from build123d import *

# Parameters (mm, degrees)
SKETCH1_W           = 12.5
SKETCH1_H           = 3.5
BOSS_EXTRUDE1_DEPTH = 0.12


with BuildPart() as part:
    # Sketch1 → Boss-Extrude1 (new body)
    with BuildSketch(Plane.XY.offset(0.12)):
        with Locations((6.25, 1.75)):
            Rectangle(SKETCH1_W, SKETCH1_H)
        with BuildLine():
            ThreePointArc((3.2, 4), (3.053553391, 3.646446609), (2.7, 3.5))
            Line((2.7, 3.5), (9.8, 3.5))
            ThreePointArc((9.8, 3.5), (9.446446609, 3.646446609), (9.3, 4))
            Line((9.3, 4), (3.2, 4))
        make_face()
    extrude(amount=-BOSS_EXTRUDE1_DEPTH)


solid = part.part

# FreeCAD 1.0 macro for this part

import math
import FreeCAD as App
import Part
import Sketcher
from FreeCAD import Vector

doc = App.newDocument("Part")
body = doc.addObject("PartDesign::Body", "Body")

sketch1 = body.newObject("Sketcher::SketchObject", "Sketch")
sketch1.AttachmentSupport = (doc.getObject("XY_Plane"), [""])
sketch1.MapMode = "FlatFace"
sketch1.AttachmentOffset = App.Placement(Vector(0, 0, 0.12), App.Rotation())
sketch1.addGeometry([
    Part.LineSegment(Vector(0, 3.5, 0), Vector(0, 0, 0)),
    Part.LineSegment(Vector(0, 0, 0), Vector(12.5, 0, 0)),
    Part.LineSegment(Vector(12.5, 0, 0), Vector(12.5, 3.5, 0)),
    Part.LineSegment(Vector(12.5, 3.5, 0), Vector(9.8, 3.5, 0)),
    Part.ArcOfCircle(Part.Circle(Vector(9.8, 4, 0), Vector(0, 0, 1), 0.5), math.radians(180), math.radians(270)),
    Part.LineSegment(Vector(9.3, 4, 0), Vector(3.2, 4, 0)),
    Part.ArcOfCircle(Part.Circle(Vector(2.7, 4, 0), Vector(0, 0, 1), 0.5), math.radians(-90), math.radians(0)),
    Part.LineSegment(Vector(2.7, 3.5, 0), Vector(0, 3.5, 0)),
], False)
sketch1.addConstraint([
    Sketcher.Constraint("Coincident", 0, 2, 1, 1),
    Sketcher.Constraint("Coincident", 1, 2, 2, 1),
    Sketcher.Constraint("Coincident", 2, 2, 3, 1),
    Sketcher.Constraint("Tangent", 3, 2, 4, 2),
    Sketcher.Constraint("Coincident", 4, 1, 5, 1),
    Sketcher.Constraint("Coincident", 5, 2, 6, 2),
    Sketcher.Constraint("Tangent", 6, 1, 7, 1),
    Sketcher.Constraint("Coincident", 7, 2, 0, 1),
    Sketcher.Constraint("Vertical", 0),
    Sketcher.Constraint("Horizontal", 1),
    Sketcher.Constraint("Vertical", 2),
    Sketcher.Constraint("Horizontal", 3),
    Sketcher.Constraint("Horizontal", 5),
    Sketcher.Constraint("Horizontal", 7),
    Sketcher.Constraint("Coincident", 0, 2, -1, 1),
    Sketcher.Constraint("Equal", 4, 6),
    Sketcher.Constraint("Horizontal", 4, 3, 6, 3),
    Sketcher.Constraint("Horizontal", 6, 3, 4, 1),
    Sketcher.Constraint("Equal", 3, 7),
    Sketcher.Constraint("Radius", 4, 0.5),
    Sketcher.Constraint("DistanceX", 1, 1, 1, 2, 12.5),
    Sketcher.Constraint("DistanceX", 3, 2, 3, 1, 2.7),
    Sketcher.Constraint("DistanceY", 0, 2, 0, 1, 3.5),
])
pad1 = body.newObject("PartDesign::Pad", "Pad")
pad1.Profile = sketch1
pad1.Length = 0.12
pad1.Reversed = True

doc.recompute()
